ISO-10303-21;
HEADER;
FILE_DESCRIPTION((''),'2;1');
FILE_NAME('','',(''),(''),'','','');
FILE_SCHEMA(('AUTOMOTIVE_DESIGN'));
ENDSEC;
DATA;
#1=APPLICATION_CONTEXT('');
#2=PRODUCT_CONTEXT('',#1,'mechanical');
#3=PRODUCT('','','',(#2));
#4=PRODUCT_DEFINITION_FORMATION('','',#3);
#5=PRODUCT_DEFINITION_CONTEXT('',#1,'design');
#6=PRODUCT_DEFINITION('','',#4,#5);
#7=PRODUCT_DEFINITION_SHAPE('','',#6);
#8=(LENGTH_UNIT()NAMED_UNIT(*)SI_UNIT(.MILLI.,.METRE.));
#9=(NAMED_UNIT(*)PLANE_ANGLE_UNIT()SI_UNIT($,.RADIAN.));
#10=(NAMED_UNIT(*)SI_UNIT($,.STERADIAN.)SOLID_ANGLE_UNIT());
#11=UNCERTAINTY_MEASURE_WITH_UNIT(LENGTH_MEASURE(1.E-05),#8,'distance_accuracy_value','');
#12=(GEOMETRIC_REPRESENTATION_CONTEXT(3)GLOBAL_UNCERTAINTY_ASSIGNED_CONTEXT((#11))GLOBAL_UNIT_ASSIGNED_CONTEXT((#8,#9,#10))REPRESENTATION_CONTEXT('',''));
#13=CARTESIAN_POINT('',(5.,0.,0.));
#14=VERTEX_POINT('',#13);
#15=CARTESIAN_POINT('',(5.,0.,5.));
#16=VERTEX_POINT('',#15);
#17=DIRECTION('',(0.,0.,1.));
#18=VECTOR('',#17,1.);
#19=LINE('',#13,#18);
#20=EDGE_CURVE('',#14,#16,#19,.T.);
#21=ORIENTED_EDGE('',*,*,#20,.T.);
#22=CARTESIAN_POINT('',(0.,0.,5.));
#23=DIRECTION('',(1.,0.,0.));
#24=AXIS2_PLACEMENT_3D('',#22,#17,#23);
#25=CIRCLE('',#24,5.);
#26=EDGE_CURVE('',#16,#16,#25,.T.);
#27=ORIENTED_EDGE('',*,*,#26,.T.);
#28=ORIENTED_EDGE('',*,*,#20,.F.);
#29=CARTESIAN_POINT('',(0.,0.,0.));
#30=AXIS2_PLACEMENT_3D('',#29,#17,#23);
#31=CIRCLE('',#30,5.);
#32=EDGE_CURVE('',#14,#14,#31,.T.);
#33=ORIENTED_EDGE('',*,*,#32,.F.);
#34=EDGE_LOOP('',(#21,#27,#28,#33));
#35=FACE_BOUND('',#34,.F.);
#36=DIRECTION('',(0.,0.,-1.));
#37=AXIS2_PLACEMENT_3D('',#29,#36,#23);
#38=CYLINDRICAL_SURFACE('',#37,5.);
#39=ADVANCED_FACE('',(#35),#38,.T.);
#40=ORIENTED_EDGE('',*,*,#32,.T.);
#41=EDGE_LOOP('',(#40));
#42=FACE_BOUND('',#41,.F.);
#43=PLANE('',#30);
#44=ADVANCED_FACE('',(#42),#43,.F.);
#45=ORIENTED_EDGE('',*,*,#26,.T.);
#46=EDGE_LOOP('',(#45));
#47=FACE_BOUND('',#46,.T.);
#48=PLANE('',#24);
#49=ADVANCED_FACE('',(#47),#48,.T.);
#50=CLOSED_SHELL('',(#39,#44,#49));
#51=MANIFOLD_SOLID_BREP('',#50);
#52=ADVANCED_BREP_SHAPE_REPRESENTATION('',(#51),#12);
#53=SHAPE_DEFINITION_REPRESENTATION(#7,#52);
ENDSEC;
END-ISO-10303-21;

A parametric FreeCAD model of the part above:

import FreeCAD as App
import Part
import Sketcher
from FreeCAD import Vector

doc = App.newDocument("Part")
params = doc.addObject("Spreadsheet::Sheet", "Params")
for row, (alias, value) in enumerate([
    ("sketch1_diameter", "10 mm"),
    ("pad1_length", "5 mm"),
], start=1):
    params.set(f"A{row}", alias)
    params.set(f"B{row}", "=" + value)
    params.setAlias(f"B{row}", alias)

body = doc.addObject("PartDesign::Body", "Body")

# Sketch on XY plane
sketch1 = body.newObject("Sketcher::SketchObject", "Sketch")
sketch1.AttachmentSupport = (doc.getObject("XY_Plane"), [""])
sketch1.MapMode = "FlatFace"
sketch1.addGeometry(Part.Circle(Vector(0, 0, 0), Vector(0, 0, 1), 5), False)
sketch1.addConstraint(Sketcher.Constraint("Coincident", 0, 3, -1, 1))
sketch1.addConstraint(Sketcher.Constraint("Diameter", 0, 10.0))
sketch1.setExpression("Constraints[1]", "Params.sketch1_diameter")
pad1 = body.newObject("PartDesign::Pad", "Pad")
pad1.Profile = sketch1
pad1.setExpression("Length", "Params.pad1_length")

doc.recompute()
